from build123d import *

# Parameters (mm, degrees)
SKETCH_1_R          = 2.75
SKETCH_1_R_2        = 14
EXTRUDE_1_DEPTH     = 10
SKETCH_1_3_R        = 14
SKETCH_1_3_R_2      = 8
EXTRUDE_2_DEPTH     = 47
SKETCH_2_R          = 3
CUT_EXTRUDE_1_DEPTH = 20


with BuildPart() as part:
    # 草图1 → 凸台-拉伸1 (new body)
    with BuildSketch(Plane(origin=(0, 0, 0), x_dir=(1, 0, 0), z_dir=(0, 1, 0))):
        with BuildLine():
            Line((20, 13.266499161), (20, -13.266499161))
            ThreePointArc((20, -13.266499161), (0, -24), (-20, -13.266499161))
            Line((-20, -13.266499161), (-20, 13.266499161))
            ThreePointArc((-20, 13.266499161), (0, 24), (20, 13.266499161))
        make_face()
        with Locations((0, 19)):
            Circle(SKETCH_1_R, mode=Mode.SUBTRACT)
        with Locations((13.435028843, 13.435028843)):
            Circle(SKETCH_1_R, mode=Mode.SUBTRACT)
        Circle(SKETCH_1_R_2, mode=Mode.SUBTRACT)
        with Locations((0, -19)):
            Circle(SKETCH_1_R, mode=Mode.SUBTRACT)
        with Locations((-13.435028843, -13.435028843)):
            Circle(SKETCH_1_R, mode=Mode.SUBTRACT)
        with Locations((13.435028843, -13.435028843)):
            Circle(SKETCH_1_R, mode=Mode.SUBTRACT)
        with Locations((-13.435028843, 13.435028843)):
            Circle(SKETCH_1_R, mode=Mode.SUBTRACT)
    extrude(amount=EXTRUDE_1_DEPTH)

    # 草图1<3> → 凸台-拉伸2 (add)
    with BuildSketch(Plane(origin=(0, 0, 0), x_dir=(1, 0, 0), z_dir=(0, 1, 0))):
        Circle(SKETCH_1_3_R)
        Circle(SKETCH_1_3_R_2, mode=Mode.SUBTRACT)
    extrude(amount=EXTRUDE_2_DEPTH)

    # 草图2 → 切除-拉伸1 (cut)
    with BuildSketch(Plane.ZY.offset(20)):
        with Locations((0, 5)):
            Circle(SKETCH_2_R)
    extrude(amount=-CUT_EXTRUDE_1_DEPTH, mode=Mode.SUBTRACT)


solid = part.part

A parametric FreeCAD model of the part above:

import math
import FreeCAD as App
import Part
import Sketcher
Q = App.Units.Quantity

doc = App.newDocument("Part")
body = doc.addObject("PartDesign::Body", "Body")

# Sketch on XZ plane
sketch1 = body.newObject("Sketcher::SketchObject", "Sketch")
sketch1.AttachmentSupport = (doc.getObject("XZ_Plane"), [""])
sketch1.MapMode = "FlatFace"
sketch1.addGeometry(Part.LineSegment(App.Vector(20, 13.3, 0), App.Vector(20, -13.3, 0)), False)
sketch1.addGeometry(Part.ArcOfCircle(Part.Circle(App.Vector(0, 0, 0), App.Vector(0, 0, 1), 24), math.radians(-146), math.radians(-34)), False)
sketch1.addGeometry(Part.LineSegment(App.Vector(-20, -13.3, 0), App.Vector(-20, 13.3, 0)), False)
sketch1.addGeometry(Part.ArcOfCircle(Part.Circle(App.Vector(0, 0, 0), App.Vector(0, 0, 1), 24), math.radians(34), math.radians(146)), False)
sketch1.addGeometry(Part.Circle(App.Vector(13.4, 13.4, 0), App.Vector(0, 0, 1), 2.8), False)
sketch1.addGeometry(Part.Circle(App.Vector(0, 19, 0), App.Vector(0, 0, 1), 2.8), False)
sketch1.addGeometry(Part.Circle(App.Vector(-13.4, 13.4, 0), App.Vector(0, 0, 1), 2.8), False)
sketch1.addGeometry(Part.Circle(App.Vector(13.4, -13.4, 0), App.Vector(0, 0, 1), 2.8), False)
sketch1.addGeometry(Part.Circle(App.Vector(0, 0, 0), App.Vector(0, 0, 1), 14), False)
sketch1.addGeometry(Part.Circle(App.Vector(0, -19, 0), App.Vector(0, 0, 1), 2.8), False)
sketch1.addGeometry(Part.Circle(App.Vector(-13.4, -13.4, 0), App.Vector(0, 0, 1), 2.8), False)
sketch1.addConstraint(Sketcher.Constraint("Coincident", 0, 2, 1, 2))
sketch1.addConstraint(Sketcher.Constraint("Coincident", 1, 1, 2, 1))
sketch1.addConstraint(Sketcher.Constraint("Coincident", 2, 2, 3, 2))
sketch1.addConstraint(Sketcher.Constraint("Coincident", 3, 1, 0, 1))
sketch1.addConstraint(Sketcher.Constraint("Vertical", 0))
sketch1.addConstraint(Sketcher.Constraint("Vertical", 2))
sketch1.addConstraint(Sketcher.Constraint("Coincident", 1, 3, -1, 1))
sketch1.addConstraint(Sketcher.Constraint("Coincident", 3, 3, -1, 1))
sketch1.addConstraint(Sketcher.Constraint("Coincident", 8, 3, -1, 1))
sketch1.addConstraint(Sketcher.Constraint("Equal", 1, 3))
sketch1.addConstraint(Sketcher.Constraint("Equal", 4, 5))
sketch1.addConstraint(Sketcher.Constraint("Equal", 5, 6))
sketch1.addConstraint(Sketcher.Constraint("Equal", 6, 7))
sketch1.addConstraint(Sketcher.Constraint("Equal", 7, 9))
sketch1.addConstraint(Sketcher.Constraint("Equal", 9, 10))
sketch1.addConstraint(Sketcher.Constraint("Symmetric", 6, 3, 7, 3, -1, 1))
sketch1.addConstraint(Sketcher.Constraint("Symmetric", 5, 3, 9, 3, -1, 1))
sketch1.addConstraint(Sketcher.Constraint("Symmetric", 4, 3, 10, 3, -1, 1))
sketch1.addConstraint(Sketcher.Constraint("Symmetric", 4, 3, 6, 3, -2))
sketch1.addConstraint(Sketcher.Constraint("PointOnObject", 5, 3, -2))
sketch1.addConstraint(Sketcher.Constraint("Horizontal", 0, 2, 1, 1))
sketch1.addConstraint(Sketcher.Constraint("Diameter", 8, Q("28 mm")))
sketch1.addConstraint(Sketcher.Constraint("Radius", 1, Q("24 mm")))
sketch1.addConstraint(Sketcher.Constraint("Diameter", 4, Q("5.5 mm")))
sketch1.addConstraint(Sketcher.Constraint("DistanceY", -1, 1, 5, 3, Q("19 mm")))
sketch1.addConstraint(Sketcher.Constraint("DistanceX", -1, 1, 0, 2, Q("20 mm")))
sketch1.addConstraint(Sketcher.Constraint("DistanceX", -1, 1, 4, 3, Q("13.435029 mm")))
sketch1.addConstraint(Sketcher.Constraint("DistanceY", -1, 1, 4, 3, Q("13.435029 mm")))
pad1 = body.newObject("PartDesign::Pad", "Pad")
pad1.Profile = sketch1
pad1.Length = 10
pad1.Reversed = True

# Sketch on XZ plane
sketch2 = body.newObject("Sketcher::SketchObject", "Sketch001")
sketch2.AttachmentSupport = (doc.getObject("XZ_Plane"), [""])
sketch2.MapMode = "FlatFace"
sketch2.addGeometry(Part.Circle(App.Vector(0, 0, 0), App.Vector(0, 0, 1), 14), False)
sketch2.addGeometry(Part.Circle(App.Vector(0, 0, 0), App.Vector(0, 0, 1), 8), False)
sketch2.addConstraint(Sketcher.Constraint("Coincident", 0, 3, -1, 1))
sketch2.addConstraint(Sketcher.Constraint("Coincident", 1, 3, -1, 1))
sketch2.addConstraint(Sketcher.Constraint("Diameter", 0, Q("28 mm")))
sketch2.addConstraint(Sketcher.Constraint("Diameter", 1, Q("16 mm")))
pad2 = body.newObject("PartDesign::Pad", "Pad001")
pad2.Profile = sketch2
pad2.Length = 47
pad2.Reversed = True

# Sketch on YZ plane
sketch3 = body.newObject("Sketcher::SketchObject", "Sketch002")
sketch3.AttachmentSupport = (doc.getObject("YZ_Plane"), [""])
sketch3.MapMode = "FlatFace"
sketch3.AttachmentOffset = App.Placement(App.Vector(0, 0, -20), App.Rotation())
sketch3.addGeometry(Part.Circle(App.Vector(5, 0, 0), App.Vector(0, 0, 1), 3), False)
sketch3.addConstraint(Sketcher.Constraint("PointOnObject", 0, 3, -1))
sketch3.addConstraint(Sketcher.Constraint("Diameter", 0, Q("6 mm")))
sketch3.addConstraint(Sketcher.Constraint("DistanceX", -1, 1, 0, 3, Q("5 mm")))
pocket1 = body.newObject("PartDesign::Pocket", "Pocket")
pocket1.Profile = sketch3
pocket1.Length = 20
pocket1.Reversed = True

doc.recompute()
